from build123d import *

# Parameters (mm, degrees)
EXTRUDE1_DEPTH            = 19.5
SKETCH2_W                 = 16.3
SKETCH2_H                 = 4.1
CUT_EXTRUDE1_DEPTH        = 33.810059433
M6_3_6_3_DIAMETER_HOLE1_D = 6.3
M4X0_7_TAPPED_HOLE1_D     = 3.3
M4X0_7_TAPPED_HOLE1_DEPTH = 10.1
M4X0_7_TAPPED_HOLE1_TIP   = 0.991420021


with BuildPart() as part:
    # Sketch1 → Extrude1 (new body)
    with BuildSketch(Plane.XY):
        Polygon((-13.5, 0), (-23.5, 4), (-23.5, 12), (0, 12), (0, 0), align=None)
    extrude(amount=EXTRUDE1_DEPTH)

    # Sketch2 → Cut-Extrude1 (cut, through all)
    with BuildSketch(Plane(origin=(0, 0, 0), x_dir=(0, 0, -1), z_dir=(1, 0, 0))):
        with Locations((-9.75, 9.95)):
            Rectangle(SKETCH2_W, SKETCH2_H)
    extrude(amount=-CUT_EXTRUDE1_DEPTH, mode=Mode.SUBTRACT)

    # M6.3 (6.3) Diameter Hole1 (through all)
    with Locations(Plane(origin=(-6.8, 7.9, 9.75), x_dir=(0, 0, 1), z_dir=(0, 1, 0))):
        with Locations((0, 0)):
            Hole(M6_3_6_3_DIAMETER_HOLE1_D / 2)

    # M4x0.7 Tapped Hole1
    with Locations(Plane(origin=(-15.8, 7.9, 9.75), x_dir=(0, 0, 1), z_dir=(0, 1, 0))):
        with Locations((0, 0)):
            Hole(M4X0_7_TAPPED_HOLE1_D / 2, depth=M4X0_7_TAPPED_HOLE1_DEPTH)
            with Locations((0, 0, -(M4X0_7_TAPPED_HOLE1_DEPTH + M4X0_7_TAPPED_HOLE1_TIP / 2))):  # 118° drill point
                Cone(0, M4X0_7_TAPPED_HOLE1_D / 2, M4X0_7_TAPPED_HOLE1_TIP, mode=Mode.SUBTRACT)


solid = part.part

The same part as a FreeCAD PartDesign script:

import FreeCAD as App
import Part
import Sketcher

V = App.Vector
Q = App.Units.Quantity


def add_polygon(sketch, points):
    """Adds a closed chain of lines whose ends are joined by coincident constraints."""
    first, n = sketch.GeometryCount, len(points)
    for a, b in zip(points, points[1:] + points[:1]):
        sketch.addGeometry(Part.LineSegment(App.Vector(*a, 0), App.Vector(*b, 0)), False)
    for i in range(n):
        sketch.addConstraint(Sketcher.Constraint("Coincident", first + i, 2, first + (i + 1) % n, 1))

doc = App.newDocument("Part")
body = doc.addObject("PartDesign::Body", "Body")

# Sketch on XY plane
sketch1 = body.newObject("Sketcher::SketchObject", "Sketch")
sketch1.AttachmentSupport = (doc.getObject("XY_Plane"), [""])
sketch1.MapMode = "FlatFace"
add_polygon(sketch1, [(-24, 4), (-14, 0), (0, 0), (0, 12), (-24, 12)])  # lines 0-4
sketch1.addConstraint([
    Sketcher.Constraint("Horizontal", 1),
    Sketcher.Constraint("Vertical", 2),
    Sketcher.Constraint("Horizontal", 3),
    Sketcher.Constraint("Vertical", 4),
    Sketcher.Constraint("Coincident", 1, 2, -1, 1),
    Sketcher.Constraint("DistanceY", 2, 1, 2, 2, Q("12 mm")),
    Sketcher.Constraint("DistanceY", 4, 2, 4, 1, Q("8 mm")),
    Sketcher.Constraint("DistanceX", 1, 1, 1, 2, Q("13.5 mm")),
    Sketcher.Constraint("DistanceX", 3, 2, 3, 1, Q("23.5 mm")),
])
pad1 = body.newObject("PartDesign::Pad", "Pad")
pad1.Profile = sketch1
pad1.Length = 19.5

# Sketch on YZ plane
sketch2 = body.newObject("Sketcher::SketchObject", "Sketch001")
sketch2.AttachmentSupport = (doc.getObject("YZ_Plane"), [""])
sketch2.MapMode = "FlatFace"
add_polygon(sketch2, [(12, 17.9), (7.9, 17.9), (7.9, 1.6), (12, 1.6)])  # lines 0-3
sketch2.addConstraint([
    Sketcher.Constraint("Horizontal", 0),
    Sketcher.Constraint("Vertical", 1),
    Sketcher.Constraint("Horizontal", 2),
    Sketcher.Constraint("Vertical", 3),
    Sketcher.Constraint("DistanceX", 0, 2, 0, 1, Q("4.1 mm")),
    Sketcher.Constraint("DistanceY", 1, 2, 1, 1, Q("16.3 mm")),
    Sketcher.Constraint("DistanceX", -1, 1, 2, 2, Q("12 mm")),
    Sketcher.Constraint("DistanceY", -1, 1, 0, 2, Q("17.9 mm")),
])
pocket1 = body.newObject("PartDesign::Pocket", "Pocket")
pocket1.Profile = sketch2
pocket1.Type = "ThroughAll"

# Sketch on XZ plane
sketch3 = body.newObject("Sketcher::SketchObject", "Sketch002")
sketch3.AttachmentSupport = (doc.getObject("XZ_Plane"), [""])
sketch3.MapMode = "FlatFace"
sketch3.AttachmentOffset = App.Placement(V(0, 0, -7.9), App.Rotation())
sketch3.addGeometry(Part.Circle(V(-6.8, 9.8, 0), V(0, 0, 1), 3.1), False)
sketch3.addConstraint([
    Sketcher.Constraint("Diameter", 0, Q("6.3 mm")),
    Sketcher.Constraint("DistanceX", 0, 3, -1, 1, Q("6.8 mm")),
    Sketcher.Constraint("DistanceY", -1, 1, 0, 3, Q("9.75 mm")),
])
doc.recompute()
hole = body.newObject("PartDesign::Hole", "Hole")
hole.Profile = sketch3
hole.ThreadType = "None"
hole.Diameter = 6.3
hole.DepthType = "ThroughAll"
hole.Reversed = True

# Sketch on XZ plane
sketch4 = body.newObject("Sketcher::SketchObject", "Sketch003")
sketch4.AttachmentSupport = (doc.getObject("XZ_Plane"), [""])
sketch4.MapMode = "FlatFace"
sketch4.AttachmentOffset = App.Placement(V(0, 0, -7.9), App.Rotation())
sketch4.addGeometry(Part.Circle(V(-15.8, 9.8, 0), V(0, 0, 1), 1.6), False)
sketch4.addConstraint([
    Sketcher.Constraint("Diameter", 0, Q("3.3 mm")),
    Sketcher.Constraint("DistanceX", 0, 3, -1, 1, Q("15.8 mm")),
    Sketcher.Constraint("DistanceY", -1, 1, 0, 3, Q("9.75 mm")),
])
doc.recompute()
hole2 = body.newObject("PartDesign::Hole", "Hole001")
hole2.Profile = sketch4
hole2.ThreadType = "None"
hole2.Diameter = 3.3
hole2.DepthType = "Dimension"
hole2.Depth = 10.1
hole2.DrillPoint = "Angled"
hole2.DrillPointAngle = 118
hole2.Reversed = True

doc.recompute()
